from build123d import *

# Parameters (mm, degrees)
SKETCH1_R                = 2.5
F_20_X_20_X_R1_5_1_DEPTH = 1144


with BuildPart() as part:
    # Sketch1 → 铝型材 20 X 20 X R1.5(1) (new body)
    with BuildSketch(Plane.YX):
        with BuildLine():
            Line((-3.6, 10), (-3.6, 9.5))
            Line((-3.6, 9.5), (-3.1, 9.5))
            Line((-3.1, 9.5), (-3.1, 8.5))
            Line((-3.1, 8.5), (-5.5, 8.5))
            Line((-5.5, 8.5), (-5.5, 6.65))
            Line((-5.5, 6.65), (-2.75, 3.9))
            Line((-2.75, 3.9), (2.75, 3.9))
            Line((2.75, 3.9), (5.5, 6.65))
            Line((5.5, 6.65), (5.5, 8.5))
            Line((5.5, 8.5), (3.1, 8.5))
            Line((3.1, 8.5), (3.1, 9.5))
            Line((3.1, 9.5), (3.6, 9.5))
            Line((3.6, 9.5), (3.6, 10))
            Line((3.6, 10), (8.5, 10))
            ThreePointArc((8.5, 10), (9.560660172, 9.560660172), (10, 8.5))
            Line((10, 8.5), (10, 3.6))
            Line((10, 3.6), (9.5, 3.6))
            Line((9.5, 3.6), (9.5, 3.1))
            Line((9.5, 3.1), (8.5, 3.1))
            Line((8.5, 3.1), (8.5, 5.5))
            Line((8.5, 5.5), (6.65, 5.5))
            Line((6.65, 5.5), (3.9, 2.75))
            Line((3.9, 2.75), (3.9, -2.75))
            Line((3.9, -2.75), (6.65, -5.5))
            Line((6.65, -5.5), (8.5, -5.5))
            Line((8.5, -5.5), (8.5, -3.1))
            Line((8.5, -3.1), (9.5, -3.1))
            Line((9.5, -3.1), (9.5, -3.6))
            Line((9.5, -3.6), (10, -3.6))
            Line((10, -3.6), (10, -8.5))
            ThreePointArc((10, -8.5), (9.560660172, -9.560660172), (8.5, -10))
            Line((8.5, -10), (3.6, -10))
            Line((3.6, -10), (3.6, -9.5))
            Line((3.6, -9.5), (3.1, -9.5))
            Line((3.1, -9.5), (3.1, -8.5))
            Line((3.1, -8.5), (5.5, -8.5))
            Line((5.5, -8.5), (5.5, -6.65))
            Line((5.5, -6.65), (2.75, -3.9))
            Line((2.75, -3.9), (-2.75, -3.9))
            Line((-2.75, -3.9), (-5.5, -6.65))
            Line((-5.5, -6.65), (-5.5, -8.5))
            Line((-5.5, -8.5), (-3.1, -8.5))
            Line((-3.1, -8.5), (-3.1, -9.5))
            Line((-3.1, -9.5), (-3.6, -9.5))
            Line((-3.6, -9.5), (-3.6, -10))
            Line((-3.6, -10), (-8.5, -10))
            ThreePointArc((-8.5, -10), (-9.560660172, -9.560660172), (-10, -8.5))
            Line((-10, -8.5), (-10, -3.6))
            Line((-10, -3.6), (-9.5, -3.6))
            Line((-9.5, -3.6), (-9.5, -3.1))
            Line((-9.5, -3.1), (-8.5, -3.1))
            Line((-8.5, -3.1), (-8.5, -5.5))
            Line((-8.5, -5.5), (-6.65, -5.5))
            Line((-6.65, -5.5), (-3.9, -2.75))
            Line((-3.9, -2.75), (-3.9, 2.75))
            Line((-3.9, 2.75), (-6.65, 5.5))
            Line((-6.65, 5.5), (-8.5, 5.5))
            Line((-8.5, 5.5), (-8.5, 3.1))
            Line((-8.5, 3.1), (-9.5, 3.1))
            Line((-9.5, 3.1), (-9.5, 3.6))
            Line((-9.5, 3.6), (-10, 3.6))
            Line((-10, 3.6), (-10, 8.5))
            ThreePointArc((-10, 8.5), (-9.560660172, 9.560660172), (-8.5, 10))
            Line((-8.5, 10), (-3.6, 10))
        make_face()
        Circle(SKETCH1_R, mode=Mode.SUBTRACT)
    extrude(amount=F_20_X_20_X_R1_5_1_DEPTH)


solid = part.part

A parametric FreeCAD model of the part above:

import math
import FreeCAD as App
import Part
import Sketcher

doc = App.newDocument("Part")
params = doc.addObject("Spreadsheet::Sheet", "Params")
for row, (alias, value) in enumerate([
    ("sketch1_diameter", "5 mm"),
    ("sketch1_radius", "1.5 mm"),
    ("sketch1_width", "1 mm"),
    ("sketch1_width2", "4.9 mm"),
    ("sketch1_width3", "2.4 mm"),
    ("pad1_length", "1144 mm"),
], start=1):
    params.set(f"A{row}", alias)
    params.set(f"B{row}", "=" + value)
    params.setAlias(f"B{row}", alias)

body = doc.addObject("PartDesign::Body", "Body")

sketch1 = body.newObject("Sketcher::SketchObject", "Sketch")
sketch1.AttachmentSupport = (doc.getObject("XY_Plane"), [""])
sketch1.MapMode = "FlatFace"
sketch1.addGeometry([
    Part.LineSegment(App.Vector(9.5, -3.6, 0), App.Vector(10, -3.6, 0)),
    Part.LineSegment(App.Vector(10, -3.6, 0), App.Vector(10, -8.5, 0)),
    Part.ArcOfCircle(Part.Circle(App.Vector(8.5, -8.5, 0), App.Vector(0, 0, 1), 1.5), math.radians(-90), math.radians(0)),
    Part.LineSegment(App.Vector(8.5, -10, 0), App.Vector(3.6, -10, 0)),
    Part.LineSegment(App.Vector(3.6, -10, 0), App.Vector(3.6, -9.5, 0)),
    Part.LineSegment(App.Vector(3.6, -9.5, 0), App.Vector(3.1, -9.5, 0)),
    Part.LineSegment(App.Vector(3.1, -9.5, 0), App.Vector(3.1, -8.5, 0)),
    Part.LineSegment(App.Vector(3.1, -8.5, 0), App.Vector(5.5, -8.5, 0)),
    Part.LineSegment(App.Vector(5.5, -8.5, 0), App.Vector(5.5, -6.65, 0)),
    Part.LineSegment(App.Vector(5.5, -6.65, 0), App.Vector(2.75, -3.9, 0)),
    Part.LineSegment(App.Vector(2.75, -3.9, 0), App.Vector(-2.75, -3.9, 0)),
    Part.LineSegment(App.Vector(-2.75, -3.9, 0), App.Vector(-5.5, -6.65, 0)),
    Part.LineSegment(App.Vector(-5.5, -6.65, 0), App.Vector(-5.5, -8.5, 0)),
    Part.LineSegment(App.Vector(-5.5, -8.5, 0), App.Vector(-3.1, -8.5, 0)),
    Part.LineSegment(App.Vector(-3.1, -8.5, 0), App.Vector(-3.1, -9.5, 0)),
    Part.LineSegment(App.Vector(-3.1, -9.5, 0), App.Vector(-3.6, -9.5, 0)),
    Part.LineSegment(App.Vector(-3.6, -9.5, 0), App.Vector(-3.6, -10, 0)),
    Part.LineSegment(App.Vector(-3.6, -10, 0), App.Vector(-8.5, -10, 0)),
    Part.ArcOfCircle(Part.Circle(App.Vector(-8.5, -8.5, 0), App.Vector(0, 0, 1), 1.5), math.radians(180), math.radians(270)),
    Part.LineSegment(App.Vector(-10, -8.5, 0), App.Vector(-10, -3.6, 0)),
    Part.LineSegment(App.Vector(-10, -3.6, 0), App.Vector(-9.5, -3.6, 0)),
    Part.LineSegment(App.Vector(-9.5, -3.6, 0), App.Vector(-9.5, -3.1, 0)),
    Part.LineSegment(App.Vector(-9.5, -3.1, 0), App.Vector(-8.5, -3.1, 0)),
    Part.LineSegment(App.Vector(-8.5, -3.1, 0), App.Vector(-8.5, -5.5, 0)),
    Part.LineSegment(App.Vector(-8.5, -5.5, 0), App.Vector(-6.65, -5.5, 0)),
    Part.LineSegment(App.Vector(-6.65, -5.5, 0), App.Vector(-3.9, -2.75, 0)),
    Part.LineSegment(App.Vector(-3.9, -2.75, 0), App.Vector(-3.9, 2.75, 0)),
    Part.LineSegment(App.Vector(-3.9, 2.75, 0), App.Vector(-6.65, 5.5, 0)),
    Part.LineSegment(App.Vector(-6.65, 5.5, 0), App.Vector(-8.5, 5.5, 0)),
    Part.LineSegment(App.Vector(-8.5, 5.5, 0), App.Vector(-8.5, 3.1, 0)),
    Part.LineSegment(App.Vector(-8.5, 3.1, 0), App.Vector(-9.5, 3.1, 0)),
    Part.LineSegment(App.Vector(-9.5, 3.1, 0), App.Vector(-9.5, 3.6, 0)),
    Part.LineSegment(App.Vector(-9.5, 3.6, 0), App.Vector(-10, 3.6, 0)),
    Part.LineSegment(App.Vector(-10, 3.6, 0), App.Vector(-10, 8.5, 0)),
    Part.ArcOfCircle(Part.Circle(App.Vector(-8.5, 8.5, 0), App.Vector(0, 0, 1), 1.5), math.radians(90), math.radians(180)),
    Part.LineSegment(App.Vector(-8.5, 10, 0), App.Vector(-3.6, 10, 0)),
    Part.LineSegment(App.Vector(-3.6, 10, 0), App.Vector(-3.6, 9.5, 0)),
    Part.LineSegment(App.Vector(-3.6, 9.5, 0), App.Vector(-3.1, 9.5, 0)),
    Part.LineSegment(App.Vector(-3.1, 9.5, 0), App.Vector(-3.1, 8.5, 0)),
    Part.LineSegment(App.Vector(-3.1, 8.5, 0), App.Vector(-5.5, 8.5, 0)),
    Part.LineSegment(App.Vector(-5.5, 8.5, 0), App.Vector(-5.5, 6.65, 0)),
    Part.LineSegment(App.Vector(-5.5, 6.65, 0), App.Vector(-2.75, 3.9, 0)),
    Part.LineSegment(App.Vector(-2.75, 3.9, 0), App.Vector(2.75, 3.9, 0)),
    Part.LineSegment(App.Vector(2.75, 3.9, 0), App.Vector(5.5, 6.65, 0)),
    Part.LineSegment(App.Vector(5.5, 6.65, 0), App.Vector(5.5, 8.5, 0)),
    Part.LineSegment(App.Vector(5.5, 8.5, 0), App.Vector(3.1, 8.5, 0)),
    Part.LineSegment(App.Vector(3.1, 8.5, 0), App.Vector(3.1, 9.5, 0)),
    Part.LineSegment(App.Vector(3.1, 9.5, 0), App.Vector(3.6, 9.5, 0)),
    Part.LineSegment(App.Vector(3.6, 9.5, 0), App.Vector(3.6, 10, 0)),
    Part.LineSegment(App.Vector(3.6, 10, 0), App.Vector(8.5, 10, 0)),
    Part.ArcOfCircle(Part.Circle(App.Vector(8.5, 8.5, 0), App.Vector(0, 0, 1), 1.5), math.radians(0), math.radians(90)),
    Part.LineSegment(App.Vector(10, 8.5, 0), App.Vector(10, 3.6, 0)),
    Part.LineSegment(App.Vector(10, 3.6, 0), App.Vector(9.5, 3.6, 0)),
    Part.LineSegment(App.Vector(9.5, 3.6, 0), App.Vector(9.5, 3.1, 0)),
    Part.LineSegment(App.Vector(9.5, 3.1, 0), App.Vector(8.5, 3.1, 0)),
    Part.LineSegment(App.Vector(8.5, 3.1, 0), App.Vector(8.5, 5.5, 0)),
    Part.LineSegment(App.Vector(8.5, 5.5, 0), App.Vector(6.65, 5.5, 0)),
    Part.LineSegment(App.Vector(6.65, 5.5, 0), App.Vector(3.9, 2.75, 0)),
    Part.LineSegment(App.Vector(3.9, 2.75, 0), App.Vector(3.9, -2.75, 0)),
    Part.LineSegment(App.Vector(3.9, -2.75, 0), App.Vector(6.65, -5.5, 0)),
    Part.LineSegment(App.Vector(6.65, -5.5, 0), App.Vector(8.5, -5.5, 0)),
    Part.LineSegment(App.Vector(8.5, -5.5, 0), App.Vector(8.5, -3.1, 0)),
    Part.LineSegment(App.Vector(8.5, -3.1, 0), App.Vector(9.5, -3.1, 0)),
    Part.LineSegment(App.Vector(9.5, -3.1, 0), App.Vector(9.5, -3.6, 0)),
    Part.Circle(App.Vector(0, 0, 0), App.Vector(0, 0, 1), 2.5),
], False)
sketch1.addConstraint([
    Sketcher.Constraint("Coincident", 0, 2, 1, 1),
    Sketcher.Constraint("Tangent", 1, 2, 2, 2),
    Sketcher.Constraint("Tangent", 2, 1, 3, 1),
    Sketcher.Constraint("Coincident", 3, 2, 4, 1),
    Sketcher.Constraint("Coincident", 4, 2, 5, 1),
    Sketcher.Constraint("Coincident", 5, 2, 6, 1),
    Sketcher.Constraint("Coincident", 6, 2, 7, 1),
    Sketcher.Constraint("Coincident", 7, 2, 8, 1),
    Sketcher.Constraint("Coincident", 8, 2, 9, 1),
    Sketcher.Constraint("Coincident", 9, 2, 10, 1),
    Sketcher.Constraint("Coincident", 10, 2, 11, 1),
    Sketcher.Constraint("Coincident", 11, 2, 12, 1),
    Sketcher.Constraint("Coincident", 12, 2, 13, 1),
    Sketcher.Constraint("Coincident", 13, 2, 14, 1),
    Sketcher.Constraint("Coincident", 14, 2, 15, 1),
    Sketcher.Constraint("Coincident", 15, 2, 16, 1),
    Sketcher.Constraint("Coincident", 16, 2, 17, 1),
    Sketcher.Constraint("Tangent", 17, 2, 18, 2),
    Sketcher.Constraint("Tangent", 18, 1, 19, 1),
    Sketcher.Constraint("Coincident", 19, 2, 20, 1),
    Sketcher.Constraint("Coincident", 20, 2, 21, 1),
    Sketcher.Constraint("Coincident", 21, 2, 22, 1),
    Sketcher.Constraint("Coincident", 22, 2, 23, 1),
    Sketcher.Constraint("Coincident", 23, 2, 24, 1),
    Sketcher.Constraint("Coincident", 24, 2, 25, 1),
    Sketcher.Constraint("Coincident", 25, 2, 26, 1),
    Sketcher.Constraint("Coincident", 26, 2, 27, 1),
    Sketcher.Constraint("Coincident", 27, 2, 28, 1),
    Sketcher.Constraint("Coincident", 28, 2, 29, 1),
    Sketcher.Constraint("Coincident", 29, 2, 30, 1),
    Sketcher.Constraint("Coincident", 30, 2, 31, 1),
    Sketcher.Constraint("Coincident", 31, 2, 32, 1),
    Sketcher.Constraint("Coincident", 32, 2, 33, 1),
    Sketcher.Constraint("Tangent", 33, 2, 34, 2),
    Sketcher.Constraint("Tangent", 34, 1, 35, 1),
    Sketcher.Constraint("Coincident", 35, 2, 36, 1),
    Sketcher.Constraint("Coincident", 36, 2, 37, 1),
    Sketcher.Constraint("Coincident", 37, 2, 38, 1),
    Sketcher.Constraint("Coincident", 38, 2, 39, 1),
    Sketcher.Constraint("Coincident", 39, 2, 40, 1),
    Sketcher.Constraint("Coincident", 40, 2, 41, 1),
    Sketcher.Constraint("Coincident", 41, 2, 42, 1),
    Sketcher.Constraint("Coincident", 42, 2, 43, 1),
    Sketcher.Constraint("Coincident", 43, 2, 44, 1),
    Sketcher.Constraint("Coincident", 44, 2, 45, 1),
    Sketcher.Constraint("Coincident", 45, 2, 46, 1),
    Sketcher.Constraint("Coincident", 46, 2, 47, 1),
    Sketcher.Constraint("Coincident", 47, 2, 48, 1),
    Sketcher.Constraint("Coincident", 48, 2, 49, 1),
    Sketcher.Constraint("Tangent", 49, 2, 50, 2),
    Sketcher.Constraint("Tangent", 50, 1, 51, 1),
    Sketcher.Constraint("Coincident", 51, 2, 52, 1),
    Sketcher.Constraint("Coincident", 52, 2, 53, 1),
    Sketcher.Constraint("Coincident", 53, 2, 54, 1),
    Sketcher.Constraint("Coincident", 54, 2, 55, 1),
    Sketcher.Constraint("Coincident", 55, 2, 56, 1),
    Sketcher.Constraint("Coincident", 56, 2, 57, 1),
    Sketcher.Constraint("Coincident", 57, 2, 58, 1),
    Sketcher.Constraint("Coincident", 58, 2, 59, 1),
    Sketcher.Constraint("Coincident", 59, 2, 60, 1),
    Sketcher.Constraint("Coincident", 60, 2, 61, 1),
    Sketcher.Constraint("Coincident", 61, 2, 62, 1),
    Sketcher.Constraint("Coincident", 62, 2, 63, 1),
    Sketcher.Constraint("Coincident", 63, 2, 0, 1),
    Sketcher.Constraint("Horizontal", 0),
    Sketcher.Constraint("Vertical", 1),
    Sketcher.Constraint("Horizontal", 3),
    Sketcher.Constraint("Vertical", 4),
    Sketcher.Constraint("Horizontal", 5),
    Sketcher.Constraint("Vertical", 6),
    Sketcher.Constraint("Horizontal", 7),
    Sketcher.Constraint("Vertical", 8),
    Sketcher.Constraint("Horizontal", 10),
    Sketcher.Constraint("Vertical", 12),
    Sketcher.Constraint("Horizontal", 13),
    Sketcher.Constraint("Vertical", 14),
    Sketcher.Constraint("Horizontal", 15),
    Sketcher.Constraint("Vertical", 16),
    Sketcher.Constraint("Horizontal", 17),
    Sketcher.Constraint("Vertical", 19),
    Sketcher.Constraint("Horizontal", 20),
    Sketcher.Constraint("Vertical", 21),
    Sketcher.Constraint("Horizontal", 22),
    Sketcher.Constraint("Vertical", 23),
    Sketcher.Constraint("Horizontal", 24),
    Sketcher.Constraint("Vertical", 26),
    Sketcher.Constraint("Horizontal", 28),
    Sketcher.Constraint("Vertical", 29),
    Sketcher.Constraint("Horizontal", 30),
    Sketcher.Constraint("Vertical", 31),
    Sketcher.Constraint("Horizontal", 32),
    Sketcher.Constraint("Vertical", 33),
    Sketcher.Constraint("Horizontal", 35),
    Sketcher.Constraint("Vertical", 36),
    Sketcher.Constraint("Horizontal", 37),
    Sketcher.Constraint("Vertical", 38),
    Sketcher.Constraint("Horizontal", 39),
    Sketcher.Constraint("Vertical", 40),
    Sketcher.Constraint("Horizontal", 42),
    Sketcher.Constraint("Vertical", 44),
    Sketcher.Constraint("Horizontal", 45),
    Sketcher.Constraint("Vertical", 46),
    Sketcher.Constraint("Horizontal", 47),
    Sketcher.Constraint("Vertical", 48),
    Sketcher.Constraint("Horizontal", 49),
    Sketcher.Constraint("Vertical", 51),
    Sketcher.Constraint("Horizontal", 52),
    Sketcher.Constraint("Vertical", 53),
    Sketcher.Constraint("Horizontal", 54),
    Sketcher.Constraint("Vertical", 55),
    Sketcher.Constraint("Horizontal", 56),
    Sketcher.Constraint("Vertical", 58),
    Sketcher.Constraint("Horizontal", 60),
    Sketcher.Constraint("Vertical", 61),
    Sketcher.Constraint("Horizontal", 62),
    Sketcher.Constraint("Vertical", 63),
    Sketcher.Constraint("Coincident", 64, 3, -1, 1),
    Sketcher.Constraint("Equal", 2, 18),
    Sketcher.Constraint("Equal", 18, 34),
    Sketcher.Constraint("Equal", 34, 50),
    Sketcher.Constraint("Symmetric", 2, 3, 34, 3, -1, 1),
    Sketcher.Constraint("Symmetric", 18, 3, 50, 3, -1, 1),
    Sketcher.Constraint("Symmetric", 4, 2, 36, 2, -1, 1),
    Sketcher.Constraint("Symmetric", 6, 2, 38, 2, -1, 1),
    Sketcher.Constraint("Symmetric", 8, 2, 40, 2, -1, 1),
    Sketcher.Constraint("Symmetric", 9, 2, 41, 2, -1, 1),
    Sketcher.Constraint("Symmetric", 11, 2, 43, 2, -1, 1),
    Sketcher.Constraint("Symmetric", 13, 2, 45, 2, -1, 1),
    Sketcher.Constraint("Symmetric", 15, 2, 47, 2, -1, 1),
    Sketcher.Constraint("Symmetric", 20, 2, 52, 2, -1, 1),
    Sketcher.Constraint("Symmetric", 22, 2, 54, 2, -1, 1),
    Sketcher.Constraint("Symmetric", 24, 2, 56, 2, -1, 1),
    Sketcher.Constraint("Symmetric", 25, 2, 57, 2, -1, 1),
    Sketcher.Constraint("Symmetric", 27, 2, 59, 2, -1, 1),
    Sketcher.Constraint("Symmetric", 29, 2, 61, 2, -1, 1),
    Sketcher.Constraint("Symmetric", 31, 2, 63, 2, -1, 1),
    Sketcher.Constraint("Symmetric", 2, 3, 18, 3, -2),
    Sketcher.Constraint("Symmetric", 8, 2, 11, 2, -2),
    Sketcher.Constraint("Symmetric", 6, 2, 13, 2, -2),
    Sketcher.Constraint("Symmetric", 4, 2, 15, 2, -2),
    Sketcher.Constraint("Symmetric", 31, 2, 52, 2, -2),
    Sketcher.Constraint("Symmetric", 29, 2, 54, 2, -2),
    Sketcher.Constraint("Symmetric", 27, 2, 56, 2, -2),
    Sketcher.Constraint("Perpendicular", 9, 11),
    Sketcher.Constraint("Parallel", 11, 25),
    Sketcher.Constraint("Perpendicular", 25, 27),
    Sketcher.Constraint("Perpendicular", 41, 43),
    Sketcher.Constraint("Perpendicular", 57, 59),
    Sketcher.Constraint("Horizontal", 1, 2, 6, 2),
    Sketcher.Constraint("Horizontal", 26, 2, 57, 2),
    Sketcher.Constraint("Vertical", 17, 2, 22, 2),
    Sketcher.Constraint("Equal", 0, 5),
    Sketcher.Constraint("Equal", 49, 1),
    Sketcher.Constraint("Equal", 52, 4),
    Sketcher.Constraint("Equal", 60, 8),
    Sketcher.Constraint("Equal", 16, 21),
    Sketcher.Constraint("Equal", 45, 23),
    Sketcher.Constraint("Equal", 42, 26),
    Sketcher.Constraint("Equal", 11, 25),
    Sketcher.Constraint("Diameter", 64, 5.0),
    Sketcher.Constraint("Radius", 2, 1.5),
    Sketcher.Constraint("DistanceX", 22, 1, 22, 2, 1.0),
    Sketcher.Constraint("DistanceX", 3, 2, 3, 1, 4.9),
    Sketcher.Constraint("DistanceX", 7, 1, 7, 2, 2.4),
    Sketcher.Constraint("DistanceX", 10, 2, 10, 1, 5.5),
    Sketcher.Constraint("DistanceX", -1, 1, 0, 2, 10.0),
    Sketcher.Constraint("DistanceX", 24, 1, 24, 2, 1.85),
])
sketch1.setExpression("Constraints[159]", "Params.sketch1_diameter")
sketch1.setExpression("Constraints[160]", "Params.sketch1_radius")
sketch1.setExpression("Constraints[161]", "Params.sketch1_width")
sketch1.setExpression("Constraints[162]", "Params.sketch1_width2")
sketch1.setExpression("Constraints[163]", "Params.sketch1_width3")
pad1 = body.newObject("PartDesign::Pad", "Pad")
pad1.Profile = sketch1
pad1.setExpression("Length", "Params.pad1_length")
pad1.Reversed = True

doc.recompute()
